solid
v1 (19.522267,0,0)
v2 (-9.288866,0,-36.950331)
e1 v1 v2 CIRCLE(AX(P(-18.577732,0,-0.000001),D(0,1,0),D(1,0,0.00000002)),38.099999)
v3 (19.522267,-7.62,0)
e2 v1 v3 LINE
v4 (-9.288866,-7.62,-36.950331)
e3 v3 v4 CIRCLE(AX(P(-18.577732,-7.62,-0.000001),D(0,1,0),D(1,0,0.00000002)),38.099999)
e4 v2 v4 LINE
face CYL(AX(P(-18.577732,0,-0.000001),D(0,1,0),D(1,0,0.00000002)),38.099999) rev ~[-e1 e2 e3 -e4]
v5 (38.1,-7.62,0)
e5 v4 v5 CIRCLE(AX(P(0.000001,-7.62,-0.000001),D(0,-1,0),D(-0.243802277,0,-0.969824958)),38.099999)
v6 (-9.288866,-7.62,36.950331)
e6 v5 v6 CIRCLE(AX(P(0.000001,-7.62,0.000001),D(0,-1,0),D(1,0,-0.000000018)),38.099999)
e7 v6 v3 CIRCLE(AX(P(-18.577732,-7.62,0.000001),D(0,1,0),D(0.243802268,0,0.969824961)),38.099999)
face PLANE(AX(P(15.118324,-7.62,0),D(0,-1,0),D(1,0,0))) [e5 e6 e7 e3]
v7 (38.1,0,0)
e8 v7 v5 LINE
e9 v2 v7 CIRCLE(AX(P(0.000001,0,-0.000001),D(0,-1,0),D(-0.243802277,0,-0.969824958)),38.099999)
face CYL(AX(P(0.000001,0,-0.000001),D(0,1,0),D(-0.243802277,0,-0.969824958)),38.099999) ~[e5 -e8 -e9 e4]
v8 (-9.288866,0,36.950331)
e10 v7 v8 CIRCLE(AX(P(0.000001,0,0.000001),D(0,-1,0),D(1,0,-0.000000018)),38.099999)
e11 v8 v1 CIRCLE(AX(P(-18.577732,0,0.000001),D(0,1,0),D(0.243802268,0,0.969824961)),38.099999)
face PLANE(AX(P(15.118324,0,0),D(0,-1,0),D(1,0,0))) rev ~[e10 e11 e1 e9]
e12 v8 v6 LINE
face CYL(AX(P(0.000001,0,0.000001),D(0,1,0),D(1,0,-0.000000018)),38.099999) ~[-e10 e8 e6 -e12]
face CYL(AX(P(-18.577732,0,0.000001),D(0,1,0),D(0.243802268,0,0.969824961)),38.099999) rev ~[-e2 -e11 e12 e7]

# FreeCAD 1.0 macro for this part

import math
import FreeCAD as App
import Part
import Sketcher

V = App.Vector
Q = App.Units.Quantity

doc = App.newDocument("Part")
body = doc.addObject("PartDesign::Body", "Body")

# Sketch on XZ plane
sketch1 = body.newObject("Sketcher::SketchObject", "Sketch")
sketch1.AttachmentSupport = (doc.getObject("XZ_Plane"), [""])
sketch1.MapMode = "FlatFace"
sketch1.addGeometry(Part.ArcOfCircle(Part.Circle(V(0, 0, 0), V(0, 0, 1), 38), math.radians(-104), math.radians(0)), False)
sketch1.addGeometry(Part.ArcOfCircle(Part.Circle(V(0, 0, 0), V(0, 0, 1), 38), math.radians(0), math.radians(104)), False)
sketch1.addGeometry(Part.ArcOfCircle(Part.Circle(V(-19, 0, 0), V(0, 0, 1), 38), math.radians(0), math.radians(76)), False)
sketch1.addGeometry(Part.ArcOfCircle(Part.Circle(V(-19, 0, 0), V(0, 0, 1), 38), math.radians(-76), math.radians(0)), False)
sketch1.addConstraint(Sketcher.Constraint("Tangent", 0, 2, 1, 1))
sketch1.addConstraint(Sketcher.Constraint("Coincident", 1, 2, 2, 2))
sketch1.addConstraint(Sketcher.Constraint("Tangent", 2, 1, 3, 2))
sketch1.addConstraint(Sketcher.Constraint("Coincident", 3, 1, 0, 1))
sketch1.addConstraint(Sketcher.Constraint("Coincident", 0, 3, -1, 1))
sketch1.addConstraint(Sketcher.Constraint("Equal", 0, 1))
sketch1.addConstraint(Sketcher.Constraint("Equal", 1, 2))
sketch1.addConstraint(Sketcher.Constraint("Equal", 2, 3))
sketch1.addConstraint(Sketcher.Constraint("PointOnObject", 2, 3, -1))
sketch1.addConstraint(Sketcher.Constraint("PointOnObject", 0, 2, -1))
sketch1.addConstraint(Sketcher.Constraint("PointOnObject", 2, 1, -1))
sketch1.addConstraint(Sketcher.Constraint("Radius", 0, Q("1.5 in")))
sketch1.addConstraint(Sketcher.Constraint("DistanceY", -1, 1, 1, 2, 36.950331))
pad1 = body.newObject("PartDesign::Pad", "Pad")
pad1.Profile = sketch1
pad1.Length = Q("0.3 in")

doc.recompute()
